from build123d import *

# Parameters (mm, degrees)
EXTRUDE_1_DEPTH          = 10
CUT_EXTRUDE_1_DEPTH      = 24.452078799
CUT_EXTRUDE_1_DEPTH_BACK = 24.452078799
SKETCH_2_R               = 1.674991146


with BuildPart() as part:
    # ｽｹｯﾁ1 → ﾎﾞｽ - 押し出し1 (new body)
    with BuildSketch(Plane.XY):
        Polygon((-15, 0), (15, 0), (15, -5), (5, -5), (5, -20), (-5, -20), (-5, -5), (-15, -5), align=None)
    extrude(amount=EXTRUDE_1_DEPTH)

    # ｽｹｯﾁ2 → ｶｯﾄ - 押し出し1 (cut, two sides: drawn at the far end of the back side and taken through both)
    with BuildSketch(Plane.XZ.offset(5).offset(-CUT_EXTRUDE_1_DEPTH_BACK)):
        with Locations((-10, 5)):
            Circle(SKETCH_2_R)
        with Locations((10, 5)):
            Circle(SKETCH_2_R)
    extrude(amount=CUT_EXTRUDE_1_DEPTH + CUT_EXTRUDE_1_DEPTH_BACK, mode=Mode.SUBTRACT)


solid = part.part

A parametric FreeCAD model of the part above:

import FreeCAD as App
import Part
import Sketcher

V = App.Vector


def add_polygon(sketch, points):
    """Adds a closed chain of lines whose ends are joined by coincident constraints."""
    first, n = sketch.GeometryCount, len(points)
    for a, b in zip(points, points[1:] + points[:1]):
        sketch.addGeometry(Part.LineSegment(App.Vector(*a, 0), App.Vector(*b, 0)), False)
    for i in range(n):
        sketch.addConstraint(Sketcher.Constraint("Coincident", first + i, 2, first + (i + 1) % n, 1))

doc = App.newDocument("Part")
body = doc.addObject("PartDesign::Body", "Body")

sketch1 = body.newObject("Sketcher::SketchObject", "Sketch")
sketch1.AttachmentSupport = (doc.getObject("XY_Plane"), [""])
sketch1.MapMode = "FlatFace"
add_polygon(sketch1, [(15, 0), (-15, 0), (-15, -5), (-5, -5), (-5, -20), (5, -20), (5, -5), (15, -5)])
sketch1.addConstraint(Sketcher.Constraint("Horizontal", 0))
sketch1.addConstraint(Sketcher.Constraint("Vertical", 1))
sketch1.addConstraint(Sketcher.Constraint("Horizontal", 2))
sketch1.addConstraint(Sketcher.Constraint("Vertical", 3))
sketch1.addConstraint(Sketcher.Constraint("Horizontal", 4))
sketch1.addConstraint(Sketcher.Constraint("Vertical", 5))
sketch1.addConstraint(Sketcher.Constraint("Horizontal", 6))
sketch1.addConstraint(Sketcher.Constraint("Vertical", 7))
sketch1.addConstraint(Sketcher.Constraint("Symmetric", 0, 2, 7, 2, -1, 1))
sketch1.addConstraint(Sketcher.Constraint("Symmetric", 2, 2, 5, 2, -2))
sketch1.addConstraint(Sketcher.Constraint("Equal", 2, 4))
sketch1.addConstraint(Sketcher.Constraint("DistanceX", 0, 2, 0, 1, 30.0))
sketch1.addConstraint(Sketcher.Constraint("DistanceY", 1, 2, 1, 1, 5.0))
sketch1.addConstraint(Sketcher.Constraint("DistanceY", 3, 2, 3, 1, 15.0))
pad1 = body.newObject("PartDesign::Pad", "Pad")
pad1.Profile = sketch1
pad1.Length = 10

sketch2 = body.newObject("Sketcher::SketchObject", "Sketch001")
sketch2.AttachmentSupport = (doc.getObject("XZ_Plane"), [""])
sketch2.MapMode = "FlatFace"
sketch2.AttachmentOffset = App.Placement(V(0, 0, 5), App.Rotation())
sketch2.addGeometry(Part.Circle(V(-10, 5, 0), V(0, 0, 1), 1.7), False)
sketch2.addGeometry(Part.Circle(V(10, 5, 0), V(0, 0, 1), 1.7), False)
sketch2.addConstraint(Sketcher.Constraint("Equal", 0, 1))
sketch2.addConstraint(Sketcher.Constraint("Symmetric", 0, 3, 1, 3, -2))
sketch2.addConstraint(Sketcher.Constraint("DistanceX", 0, 3, -1, 1, 10.0))
sketch2.addConstraint(Sketcher.Constraint("DistanceY", -1, 1, 0, 3, 5.0))
sketch2.addConstraint(Sketcher.Constraint("Diameter", 0, 3.349982))
pocket1 = body.newObject("PartDesign::Pocket", "Pocket")
pocket1.Profile = sketch2
pocket1.Type = "ThroughAll"
pocket1.Midplane = True

doc.recompute()
